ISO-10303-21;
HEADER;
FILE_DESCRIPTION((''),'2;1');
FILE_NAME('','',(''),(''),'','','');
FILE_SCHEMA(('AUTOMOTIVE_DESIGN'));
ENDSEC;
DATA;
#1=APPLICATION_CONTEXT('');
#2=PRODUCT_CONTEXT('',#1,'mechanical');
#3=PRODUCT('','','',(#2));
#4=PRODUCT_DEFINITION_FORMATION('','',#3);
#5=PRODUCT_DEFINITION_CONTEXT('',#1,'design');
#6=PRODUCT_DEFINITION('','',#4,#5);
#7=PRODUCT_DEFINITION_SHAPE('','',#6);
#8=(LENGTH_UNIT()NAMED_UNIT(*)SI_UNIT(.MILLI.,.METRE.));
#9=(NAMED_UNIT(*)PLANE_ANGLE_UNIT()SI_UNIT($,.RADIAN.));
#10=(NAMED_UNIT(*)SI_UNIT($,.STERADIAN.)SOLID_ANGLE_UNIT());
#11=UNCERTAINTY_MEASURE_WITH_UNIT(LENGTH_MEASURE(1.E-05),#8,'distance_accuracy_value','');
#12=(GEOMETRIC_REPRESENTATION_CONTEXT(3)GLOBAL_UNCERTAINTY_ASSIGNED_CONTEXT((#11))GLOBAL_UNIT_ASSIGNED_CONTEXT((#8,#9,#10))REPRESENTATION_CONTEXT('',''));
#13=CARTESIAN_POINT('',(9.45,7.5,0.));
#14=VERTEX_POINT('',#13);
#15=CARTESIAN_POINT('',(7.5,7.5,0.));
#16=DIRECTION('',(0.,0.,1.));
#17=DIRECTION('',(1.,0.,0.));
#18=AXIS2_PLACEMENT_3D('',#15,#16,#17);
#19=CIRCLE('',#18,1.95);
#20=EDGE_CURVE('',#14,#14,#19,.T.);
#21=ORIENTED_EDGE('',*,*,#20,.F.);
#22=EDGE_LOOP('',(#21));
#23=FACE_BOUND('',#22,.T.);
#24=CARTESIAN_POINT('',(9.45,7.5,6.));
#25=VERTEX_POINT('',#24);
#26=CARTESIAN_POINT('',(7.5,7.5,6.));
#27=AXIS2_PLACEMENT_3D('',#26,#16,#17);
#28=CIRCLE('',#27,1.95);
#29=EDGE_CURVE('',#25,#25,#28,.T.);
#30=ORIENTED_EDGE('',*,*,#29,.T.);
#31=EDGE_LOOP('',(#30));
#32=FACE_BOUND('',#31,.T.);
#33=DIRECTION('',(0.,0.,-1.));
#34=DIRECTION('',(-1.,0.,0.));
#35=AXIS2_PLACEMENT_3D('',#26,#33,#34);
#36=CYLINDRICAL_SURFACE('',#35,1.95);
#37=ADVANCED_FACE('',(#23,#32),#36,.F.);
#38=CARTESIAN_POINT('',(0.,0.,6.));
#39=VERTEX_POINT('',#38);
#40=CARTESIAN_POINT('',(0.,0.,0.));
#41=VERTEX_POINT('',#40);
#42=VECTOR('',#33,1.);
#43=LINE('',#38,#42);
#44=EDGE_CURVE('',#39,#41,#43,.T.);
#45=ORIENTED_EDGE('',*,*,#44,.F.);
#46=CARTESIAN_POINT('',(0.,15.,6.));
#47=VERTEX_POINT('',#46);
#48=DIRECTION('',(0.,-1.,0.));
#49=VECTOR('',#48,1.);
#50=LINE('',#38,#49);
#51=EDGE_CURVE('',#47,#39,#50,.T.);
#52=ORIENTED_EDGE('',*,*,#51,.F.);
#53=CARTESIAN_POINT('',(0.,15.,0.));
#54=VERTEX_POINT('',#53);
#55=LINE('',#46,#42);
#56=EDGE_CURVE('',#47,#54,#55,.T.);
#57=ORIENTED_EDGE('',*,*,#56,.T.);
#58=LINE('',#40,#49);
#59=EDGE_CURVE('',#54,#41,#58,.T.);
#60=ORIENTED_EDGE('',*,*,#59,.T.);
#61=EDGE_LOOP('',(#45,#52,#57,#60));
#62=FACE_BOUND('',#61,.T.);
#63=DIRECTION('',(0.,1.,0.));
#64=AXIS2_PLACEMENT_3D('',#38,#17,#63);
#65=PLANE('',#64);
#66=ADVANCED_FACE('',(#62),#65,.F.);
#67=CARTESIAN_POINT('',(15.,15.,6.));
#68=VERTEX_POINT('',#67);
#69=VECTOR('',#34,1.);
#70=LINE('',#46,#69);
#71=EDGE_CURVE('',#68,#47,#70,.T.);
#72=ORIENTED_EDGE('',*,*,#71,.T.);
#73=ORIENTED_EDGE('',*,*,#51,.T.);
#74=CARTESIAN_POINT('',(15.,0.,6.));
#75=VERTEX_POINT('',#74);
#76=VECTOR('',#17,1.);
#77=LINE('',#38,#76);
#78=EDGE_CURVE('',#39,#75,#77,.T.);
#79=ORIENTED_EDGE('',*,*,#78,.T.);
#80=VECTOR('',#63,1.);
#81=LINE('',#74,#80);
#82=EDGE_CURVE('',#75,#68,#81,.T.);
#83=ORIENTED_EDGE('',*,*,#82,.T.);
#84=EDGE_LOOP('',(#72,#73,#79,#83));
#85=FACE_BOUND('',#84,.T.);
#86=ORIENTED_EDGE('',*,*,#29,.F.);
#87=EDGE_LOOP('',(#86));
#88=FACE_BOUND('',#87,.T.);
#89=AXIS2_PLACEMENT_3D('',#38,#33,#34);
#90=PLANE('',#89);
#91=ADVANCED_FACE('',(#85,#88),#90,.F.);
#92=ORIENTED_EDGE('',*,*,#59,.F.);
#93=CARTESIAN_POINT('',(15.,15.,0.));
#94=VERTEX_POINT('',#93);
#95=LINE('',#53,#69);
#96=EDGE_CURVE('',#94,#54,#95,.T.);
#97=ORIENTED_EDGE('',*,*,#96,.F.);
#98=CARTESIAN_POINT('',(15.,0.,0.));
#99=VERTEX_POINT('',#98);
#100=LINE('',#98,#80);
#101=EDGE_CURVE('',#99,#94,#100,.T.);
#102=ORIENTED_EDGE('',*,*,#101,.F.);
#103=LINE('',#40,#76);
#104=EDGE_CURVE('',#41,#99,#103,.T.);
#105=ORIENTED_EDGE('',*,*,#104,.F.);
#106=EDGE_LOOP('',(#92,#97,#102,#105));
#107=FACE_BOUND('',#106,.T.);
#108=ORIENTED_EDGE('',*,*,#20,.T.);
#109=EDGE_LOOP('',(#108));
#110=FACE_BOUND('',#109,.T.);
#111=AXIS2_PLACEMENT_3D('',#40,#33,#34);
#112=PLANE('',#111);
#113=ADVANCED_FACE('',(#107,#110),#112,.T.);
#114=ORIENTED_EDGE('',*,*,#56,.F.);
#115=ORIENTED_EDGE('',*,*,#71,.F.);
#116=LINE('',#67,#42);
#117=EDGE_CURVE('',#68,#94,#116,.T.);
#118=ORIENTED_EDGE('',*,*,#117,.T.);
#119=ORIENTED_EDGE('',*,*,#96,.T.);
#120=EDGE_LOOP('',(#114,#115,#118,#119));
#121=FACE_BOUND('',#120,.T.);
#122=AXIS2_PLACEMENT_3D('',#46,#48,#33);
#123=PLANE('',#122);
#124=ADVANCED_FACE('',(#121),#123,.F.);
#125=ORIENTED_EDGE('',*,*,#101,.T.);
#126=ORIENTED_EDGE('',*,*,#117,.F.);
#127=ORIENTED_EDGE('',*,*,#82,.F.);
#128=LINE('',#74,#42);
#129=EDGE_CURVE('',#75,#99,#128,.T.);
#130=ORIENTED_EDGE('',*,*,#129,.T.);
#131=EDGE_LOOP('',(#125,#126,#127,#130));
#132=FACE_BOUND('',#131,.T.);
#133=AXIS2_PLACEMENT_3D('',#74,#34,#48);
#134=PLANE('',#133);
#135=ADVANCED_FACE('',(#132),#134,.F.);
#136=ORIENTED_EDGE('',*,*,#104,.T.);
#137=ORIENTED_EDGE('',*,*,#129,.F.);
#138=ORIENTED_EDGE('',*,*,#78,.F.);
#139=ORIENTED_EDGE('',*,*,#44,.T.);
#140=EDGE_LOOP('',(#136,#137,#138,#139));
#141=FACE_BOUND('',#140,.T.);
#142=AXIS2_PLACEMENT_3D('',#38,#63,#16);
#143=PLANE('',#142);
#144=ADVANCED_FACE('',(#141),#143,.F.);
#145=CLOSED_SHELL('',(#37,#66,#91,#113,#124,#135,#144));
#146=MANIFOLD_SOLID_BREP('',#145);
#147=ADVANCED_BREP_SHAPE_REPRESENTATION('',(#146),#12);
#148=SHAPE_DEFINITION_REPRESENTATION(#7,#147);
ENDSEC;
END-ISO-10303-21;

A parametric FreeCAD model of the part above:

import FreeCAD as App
import Part
import Sketcher
from FreeCAD import Vector
Q = App.Units.Quantity


def add_polygon(sketch, points):
    """Adds a closed chain of lines whose ends are joined by coincident constraints."""
    first, n = sketch.GeometryCount, len(points)
    for a, b in zip(points, points[1:] + points[:1]):
        sketch.addGeometry(Part.LineSegment(App.Vector(*a, 0), App.Vector(*b, 0)), False)
    for i in range(n):
        sketch.addConstraint(Sketcher.Constraint("Coincident", first + i, 2, first + (i + 1) % n, 1))

doc = App.newDocument("Part")
params = doc.addObject("Spreadsheet::Sheet", "Params")
for row, (alias, value) in enumerate([
    ("sketch1_diameter", "3.9 mm"),
    ("sketch1_width", "15 mm"),
    ("pad1_length", "6 mm"),
], start=1):
    params.set(f"A{row}", alias)
    params.set(f"B{row}", "=" + value)
    params.setAlias(f"B{row}", alias)

body = doc.addObject("PartDesign::Body", "Body")

sketch1 = doc.addObject("Sketcher::SketchObject", "Sketch")
body.addObject(sketch1)
sketch1.AttachmentSupport = (doc.XY_Plane, [""])
sketch1.MapMode = "FlatFace"
add_polygon(sketch1, [(0, 15), (0, 0), (15, 0), (15, 15)])
sketch1.addGeometry(Part.Circle(Vector(7.5, 7.5, 0), Vector(0, 0, 1), 1.95), False)
sketch1.addConstraint([
    Sketcher.Constraint("Vertical", 0),
    Sketcher.Constraint("Horizontal", 1),
    Sketcher.Constraint("Vertical", 2),
    Sketcher.Constraint("Horizontal", 3),
    Sketcher.Constraint("Coincident", 0, 2, -1, 1),
    Sketcher.Constraint("Equal", 3, 0),
    Sketcher.Constraint("Diameter", 4, Q("3.9 mm")),
    Sketcher.Constraint("DistanceX", 1, 1, 1, 2, Q("15 mm")),
    Sketcher.Constraint("DistanceX", -1, 1, 4, 3, Q("7.5 mm")),
    Sketcher.Constraint("DistanceY", -1, 1, 4, 3, Q("7.5 mm")),
])
sketch1.setExpression("Constraints[10]", "Params.sketch1_diameter")
sketch1.setExpression("Constraints[11]", "Params.sketch1_width")
pad1 = doc.addObject("PartDesign::Pad", "Pad")
body.addObject(pad1)
pad1.Profile = sketch1
pad1.setExpression("Length", "Params.pad1_length")

doc.recompute()
